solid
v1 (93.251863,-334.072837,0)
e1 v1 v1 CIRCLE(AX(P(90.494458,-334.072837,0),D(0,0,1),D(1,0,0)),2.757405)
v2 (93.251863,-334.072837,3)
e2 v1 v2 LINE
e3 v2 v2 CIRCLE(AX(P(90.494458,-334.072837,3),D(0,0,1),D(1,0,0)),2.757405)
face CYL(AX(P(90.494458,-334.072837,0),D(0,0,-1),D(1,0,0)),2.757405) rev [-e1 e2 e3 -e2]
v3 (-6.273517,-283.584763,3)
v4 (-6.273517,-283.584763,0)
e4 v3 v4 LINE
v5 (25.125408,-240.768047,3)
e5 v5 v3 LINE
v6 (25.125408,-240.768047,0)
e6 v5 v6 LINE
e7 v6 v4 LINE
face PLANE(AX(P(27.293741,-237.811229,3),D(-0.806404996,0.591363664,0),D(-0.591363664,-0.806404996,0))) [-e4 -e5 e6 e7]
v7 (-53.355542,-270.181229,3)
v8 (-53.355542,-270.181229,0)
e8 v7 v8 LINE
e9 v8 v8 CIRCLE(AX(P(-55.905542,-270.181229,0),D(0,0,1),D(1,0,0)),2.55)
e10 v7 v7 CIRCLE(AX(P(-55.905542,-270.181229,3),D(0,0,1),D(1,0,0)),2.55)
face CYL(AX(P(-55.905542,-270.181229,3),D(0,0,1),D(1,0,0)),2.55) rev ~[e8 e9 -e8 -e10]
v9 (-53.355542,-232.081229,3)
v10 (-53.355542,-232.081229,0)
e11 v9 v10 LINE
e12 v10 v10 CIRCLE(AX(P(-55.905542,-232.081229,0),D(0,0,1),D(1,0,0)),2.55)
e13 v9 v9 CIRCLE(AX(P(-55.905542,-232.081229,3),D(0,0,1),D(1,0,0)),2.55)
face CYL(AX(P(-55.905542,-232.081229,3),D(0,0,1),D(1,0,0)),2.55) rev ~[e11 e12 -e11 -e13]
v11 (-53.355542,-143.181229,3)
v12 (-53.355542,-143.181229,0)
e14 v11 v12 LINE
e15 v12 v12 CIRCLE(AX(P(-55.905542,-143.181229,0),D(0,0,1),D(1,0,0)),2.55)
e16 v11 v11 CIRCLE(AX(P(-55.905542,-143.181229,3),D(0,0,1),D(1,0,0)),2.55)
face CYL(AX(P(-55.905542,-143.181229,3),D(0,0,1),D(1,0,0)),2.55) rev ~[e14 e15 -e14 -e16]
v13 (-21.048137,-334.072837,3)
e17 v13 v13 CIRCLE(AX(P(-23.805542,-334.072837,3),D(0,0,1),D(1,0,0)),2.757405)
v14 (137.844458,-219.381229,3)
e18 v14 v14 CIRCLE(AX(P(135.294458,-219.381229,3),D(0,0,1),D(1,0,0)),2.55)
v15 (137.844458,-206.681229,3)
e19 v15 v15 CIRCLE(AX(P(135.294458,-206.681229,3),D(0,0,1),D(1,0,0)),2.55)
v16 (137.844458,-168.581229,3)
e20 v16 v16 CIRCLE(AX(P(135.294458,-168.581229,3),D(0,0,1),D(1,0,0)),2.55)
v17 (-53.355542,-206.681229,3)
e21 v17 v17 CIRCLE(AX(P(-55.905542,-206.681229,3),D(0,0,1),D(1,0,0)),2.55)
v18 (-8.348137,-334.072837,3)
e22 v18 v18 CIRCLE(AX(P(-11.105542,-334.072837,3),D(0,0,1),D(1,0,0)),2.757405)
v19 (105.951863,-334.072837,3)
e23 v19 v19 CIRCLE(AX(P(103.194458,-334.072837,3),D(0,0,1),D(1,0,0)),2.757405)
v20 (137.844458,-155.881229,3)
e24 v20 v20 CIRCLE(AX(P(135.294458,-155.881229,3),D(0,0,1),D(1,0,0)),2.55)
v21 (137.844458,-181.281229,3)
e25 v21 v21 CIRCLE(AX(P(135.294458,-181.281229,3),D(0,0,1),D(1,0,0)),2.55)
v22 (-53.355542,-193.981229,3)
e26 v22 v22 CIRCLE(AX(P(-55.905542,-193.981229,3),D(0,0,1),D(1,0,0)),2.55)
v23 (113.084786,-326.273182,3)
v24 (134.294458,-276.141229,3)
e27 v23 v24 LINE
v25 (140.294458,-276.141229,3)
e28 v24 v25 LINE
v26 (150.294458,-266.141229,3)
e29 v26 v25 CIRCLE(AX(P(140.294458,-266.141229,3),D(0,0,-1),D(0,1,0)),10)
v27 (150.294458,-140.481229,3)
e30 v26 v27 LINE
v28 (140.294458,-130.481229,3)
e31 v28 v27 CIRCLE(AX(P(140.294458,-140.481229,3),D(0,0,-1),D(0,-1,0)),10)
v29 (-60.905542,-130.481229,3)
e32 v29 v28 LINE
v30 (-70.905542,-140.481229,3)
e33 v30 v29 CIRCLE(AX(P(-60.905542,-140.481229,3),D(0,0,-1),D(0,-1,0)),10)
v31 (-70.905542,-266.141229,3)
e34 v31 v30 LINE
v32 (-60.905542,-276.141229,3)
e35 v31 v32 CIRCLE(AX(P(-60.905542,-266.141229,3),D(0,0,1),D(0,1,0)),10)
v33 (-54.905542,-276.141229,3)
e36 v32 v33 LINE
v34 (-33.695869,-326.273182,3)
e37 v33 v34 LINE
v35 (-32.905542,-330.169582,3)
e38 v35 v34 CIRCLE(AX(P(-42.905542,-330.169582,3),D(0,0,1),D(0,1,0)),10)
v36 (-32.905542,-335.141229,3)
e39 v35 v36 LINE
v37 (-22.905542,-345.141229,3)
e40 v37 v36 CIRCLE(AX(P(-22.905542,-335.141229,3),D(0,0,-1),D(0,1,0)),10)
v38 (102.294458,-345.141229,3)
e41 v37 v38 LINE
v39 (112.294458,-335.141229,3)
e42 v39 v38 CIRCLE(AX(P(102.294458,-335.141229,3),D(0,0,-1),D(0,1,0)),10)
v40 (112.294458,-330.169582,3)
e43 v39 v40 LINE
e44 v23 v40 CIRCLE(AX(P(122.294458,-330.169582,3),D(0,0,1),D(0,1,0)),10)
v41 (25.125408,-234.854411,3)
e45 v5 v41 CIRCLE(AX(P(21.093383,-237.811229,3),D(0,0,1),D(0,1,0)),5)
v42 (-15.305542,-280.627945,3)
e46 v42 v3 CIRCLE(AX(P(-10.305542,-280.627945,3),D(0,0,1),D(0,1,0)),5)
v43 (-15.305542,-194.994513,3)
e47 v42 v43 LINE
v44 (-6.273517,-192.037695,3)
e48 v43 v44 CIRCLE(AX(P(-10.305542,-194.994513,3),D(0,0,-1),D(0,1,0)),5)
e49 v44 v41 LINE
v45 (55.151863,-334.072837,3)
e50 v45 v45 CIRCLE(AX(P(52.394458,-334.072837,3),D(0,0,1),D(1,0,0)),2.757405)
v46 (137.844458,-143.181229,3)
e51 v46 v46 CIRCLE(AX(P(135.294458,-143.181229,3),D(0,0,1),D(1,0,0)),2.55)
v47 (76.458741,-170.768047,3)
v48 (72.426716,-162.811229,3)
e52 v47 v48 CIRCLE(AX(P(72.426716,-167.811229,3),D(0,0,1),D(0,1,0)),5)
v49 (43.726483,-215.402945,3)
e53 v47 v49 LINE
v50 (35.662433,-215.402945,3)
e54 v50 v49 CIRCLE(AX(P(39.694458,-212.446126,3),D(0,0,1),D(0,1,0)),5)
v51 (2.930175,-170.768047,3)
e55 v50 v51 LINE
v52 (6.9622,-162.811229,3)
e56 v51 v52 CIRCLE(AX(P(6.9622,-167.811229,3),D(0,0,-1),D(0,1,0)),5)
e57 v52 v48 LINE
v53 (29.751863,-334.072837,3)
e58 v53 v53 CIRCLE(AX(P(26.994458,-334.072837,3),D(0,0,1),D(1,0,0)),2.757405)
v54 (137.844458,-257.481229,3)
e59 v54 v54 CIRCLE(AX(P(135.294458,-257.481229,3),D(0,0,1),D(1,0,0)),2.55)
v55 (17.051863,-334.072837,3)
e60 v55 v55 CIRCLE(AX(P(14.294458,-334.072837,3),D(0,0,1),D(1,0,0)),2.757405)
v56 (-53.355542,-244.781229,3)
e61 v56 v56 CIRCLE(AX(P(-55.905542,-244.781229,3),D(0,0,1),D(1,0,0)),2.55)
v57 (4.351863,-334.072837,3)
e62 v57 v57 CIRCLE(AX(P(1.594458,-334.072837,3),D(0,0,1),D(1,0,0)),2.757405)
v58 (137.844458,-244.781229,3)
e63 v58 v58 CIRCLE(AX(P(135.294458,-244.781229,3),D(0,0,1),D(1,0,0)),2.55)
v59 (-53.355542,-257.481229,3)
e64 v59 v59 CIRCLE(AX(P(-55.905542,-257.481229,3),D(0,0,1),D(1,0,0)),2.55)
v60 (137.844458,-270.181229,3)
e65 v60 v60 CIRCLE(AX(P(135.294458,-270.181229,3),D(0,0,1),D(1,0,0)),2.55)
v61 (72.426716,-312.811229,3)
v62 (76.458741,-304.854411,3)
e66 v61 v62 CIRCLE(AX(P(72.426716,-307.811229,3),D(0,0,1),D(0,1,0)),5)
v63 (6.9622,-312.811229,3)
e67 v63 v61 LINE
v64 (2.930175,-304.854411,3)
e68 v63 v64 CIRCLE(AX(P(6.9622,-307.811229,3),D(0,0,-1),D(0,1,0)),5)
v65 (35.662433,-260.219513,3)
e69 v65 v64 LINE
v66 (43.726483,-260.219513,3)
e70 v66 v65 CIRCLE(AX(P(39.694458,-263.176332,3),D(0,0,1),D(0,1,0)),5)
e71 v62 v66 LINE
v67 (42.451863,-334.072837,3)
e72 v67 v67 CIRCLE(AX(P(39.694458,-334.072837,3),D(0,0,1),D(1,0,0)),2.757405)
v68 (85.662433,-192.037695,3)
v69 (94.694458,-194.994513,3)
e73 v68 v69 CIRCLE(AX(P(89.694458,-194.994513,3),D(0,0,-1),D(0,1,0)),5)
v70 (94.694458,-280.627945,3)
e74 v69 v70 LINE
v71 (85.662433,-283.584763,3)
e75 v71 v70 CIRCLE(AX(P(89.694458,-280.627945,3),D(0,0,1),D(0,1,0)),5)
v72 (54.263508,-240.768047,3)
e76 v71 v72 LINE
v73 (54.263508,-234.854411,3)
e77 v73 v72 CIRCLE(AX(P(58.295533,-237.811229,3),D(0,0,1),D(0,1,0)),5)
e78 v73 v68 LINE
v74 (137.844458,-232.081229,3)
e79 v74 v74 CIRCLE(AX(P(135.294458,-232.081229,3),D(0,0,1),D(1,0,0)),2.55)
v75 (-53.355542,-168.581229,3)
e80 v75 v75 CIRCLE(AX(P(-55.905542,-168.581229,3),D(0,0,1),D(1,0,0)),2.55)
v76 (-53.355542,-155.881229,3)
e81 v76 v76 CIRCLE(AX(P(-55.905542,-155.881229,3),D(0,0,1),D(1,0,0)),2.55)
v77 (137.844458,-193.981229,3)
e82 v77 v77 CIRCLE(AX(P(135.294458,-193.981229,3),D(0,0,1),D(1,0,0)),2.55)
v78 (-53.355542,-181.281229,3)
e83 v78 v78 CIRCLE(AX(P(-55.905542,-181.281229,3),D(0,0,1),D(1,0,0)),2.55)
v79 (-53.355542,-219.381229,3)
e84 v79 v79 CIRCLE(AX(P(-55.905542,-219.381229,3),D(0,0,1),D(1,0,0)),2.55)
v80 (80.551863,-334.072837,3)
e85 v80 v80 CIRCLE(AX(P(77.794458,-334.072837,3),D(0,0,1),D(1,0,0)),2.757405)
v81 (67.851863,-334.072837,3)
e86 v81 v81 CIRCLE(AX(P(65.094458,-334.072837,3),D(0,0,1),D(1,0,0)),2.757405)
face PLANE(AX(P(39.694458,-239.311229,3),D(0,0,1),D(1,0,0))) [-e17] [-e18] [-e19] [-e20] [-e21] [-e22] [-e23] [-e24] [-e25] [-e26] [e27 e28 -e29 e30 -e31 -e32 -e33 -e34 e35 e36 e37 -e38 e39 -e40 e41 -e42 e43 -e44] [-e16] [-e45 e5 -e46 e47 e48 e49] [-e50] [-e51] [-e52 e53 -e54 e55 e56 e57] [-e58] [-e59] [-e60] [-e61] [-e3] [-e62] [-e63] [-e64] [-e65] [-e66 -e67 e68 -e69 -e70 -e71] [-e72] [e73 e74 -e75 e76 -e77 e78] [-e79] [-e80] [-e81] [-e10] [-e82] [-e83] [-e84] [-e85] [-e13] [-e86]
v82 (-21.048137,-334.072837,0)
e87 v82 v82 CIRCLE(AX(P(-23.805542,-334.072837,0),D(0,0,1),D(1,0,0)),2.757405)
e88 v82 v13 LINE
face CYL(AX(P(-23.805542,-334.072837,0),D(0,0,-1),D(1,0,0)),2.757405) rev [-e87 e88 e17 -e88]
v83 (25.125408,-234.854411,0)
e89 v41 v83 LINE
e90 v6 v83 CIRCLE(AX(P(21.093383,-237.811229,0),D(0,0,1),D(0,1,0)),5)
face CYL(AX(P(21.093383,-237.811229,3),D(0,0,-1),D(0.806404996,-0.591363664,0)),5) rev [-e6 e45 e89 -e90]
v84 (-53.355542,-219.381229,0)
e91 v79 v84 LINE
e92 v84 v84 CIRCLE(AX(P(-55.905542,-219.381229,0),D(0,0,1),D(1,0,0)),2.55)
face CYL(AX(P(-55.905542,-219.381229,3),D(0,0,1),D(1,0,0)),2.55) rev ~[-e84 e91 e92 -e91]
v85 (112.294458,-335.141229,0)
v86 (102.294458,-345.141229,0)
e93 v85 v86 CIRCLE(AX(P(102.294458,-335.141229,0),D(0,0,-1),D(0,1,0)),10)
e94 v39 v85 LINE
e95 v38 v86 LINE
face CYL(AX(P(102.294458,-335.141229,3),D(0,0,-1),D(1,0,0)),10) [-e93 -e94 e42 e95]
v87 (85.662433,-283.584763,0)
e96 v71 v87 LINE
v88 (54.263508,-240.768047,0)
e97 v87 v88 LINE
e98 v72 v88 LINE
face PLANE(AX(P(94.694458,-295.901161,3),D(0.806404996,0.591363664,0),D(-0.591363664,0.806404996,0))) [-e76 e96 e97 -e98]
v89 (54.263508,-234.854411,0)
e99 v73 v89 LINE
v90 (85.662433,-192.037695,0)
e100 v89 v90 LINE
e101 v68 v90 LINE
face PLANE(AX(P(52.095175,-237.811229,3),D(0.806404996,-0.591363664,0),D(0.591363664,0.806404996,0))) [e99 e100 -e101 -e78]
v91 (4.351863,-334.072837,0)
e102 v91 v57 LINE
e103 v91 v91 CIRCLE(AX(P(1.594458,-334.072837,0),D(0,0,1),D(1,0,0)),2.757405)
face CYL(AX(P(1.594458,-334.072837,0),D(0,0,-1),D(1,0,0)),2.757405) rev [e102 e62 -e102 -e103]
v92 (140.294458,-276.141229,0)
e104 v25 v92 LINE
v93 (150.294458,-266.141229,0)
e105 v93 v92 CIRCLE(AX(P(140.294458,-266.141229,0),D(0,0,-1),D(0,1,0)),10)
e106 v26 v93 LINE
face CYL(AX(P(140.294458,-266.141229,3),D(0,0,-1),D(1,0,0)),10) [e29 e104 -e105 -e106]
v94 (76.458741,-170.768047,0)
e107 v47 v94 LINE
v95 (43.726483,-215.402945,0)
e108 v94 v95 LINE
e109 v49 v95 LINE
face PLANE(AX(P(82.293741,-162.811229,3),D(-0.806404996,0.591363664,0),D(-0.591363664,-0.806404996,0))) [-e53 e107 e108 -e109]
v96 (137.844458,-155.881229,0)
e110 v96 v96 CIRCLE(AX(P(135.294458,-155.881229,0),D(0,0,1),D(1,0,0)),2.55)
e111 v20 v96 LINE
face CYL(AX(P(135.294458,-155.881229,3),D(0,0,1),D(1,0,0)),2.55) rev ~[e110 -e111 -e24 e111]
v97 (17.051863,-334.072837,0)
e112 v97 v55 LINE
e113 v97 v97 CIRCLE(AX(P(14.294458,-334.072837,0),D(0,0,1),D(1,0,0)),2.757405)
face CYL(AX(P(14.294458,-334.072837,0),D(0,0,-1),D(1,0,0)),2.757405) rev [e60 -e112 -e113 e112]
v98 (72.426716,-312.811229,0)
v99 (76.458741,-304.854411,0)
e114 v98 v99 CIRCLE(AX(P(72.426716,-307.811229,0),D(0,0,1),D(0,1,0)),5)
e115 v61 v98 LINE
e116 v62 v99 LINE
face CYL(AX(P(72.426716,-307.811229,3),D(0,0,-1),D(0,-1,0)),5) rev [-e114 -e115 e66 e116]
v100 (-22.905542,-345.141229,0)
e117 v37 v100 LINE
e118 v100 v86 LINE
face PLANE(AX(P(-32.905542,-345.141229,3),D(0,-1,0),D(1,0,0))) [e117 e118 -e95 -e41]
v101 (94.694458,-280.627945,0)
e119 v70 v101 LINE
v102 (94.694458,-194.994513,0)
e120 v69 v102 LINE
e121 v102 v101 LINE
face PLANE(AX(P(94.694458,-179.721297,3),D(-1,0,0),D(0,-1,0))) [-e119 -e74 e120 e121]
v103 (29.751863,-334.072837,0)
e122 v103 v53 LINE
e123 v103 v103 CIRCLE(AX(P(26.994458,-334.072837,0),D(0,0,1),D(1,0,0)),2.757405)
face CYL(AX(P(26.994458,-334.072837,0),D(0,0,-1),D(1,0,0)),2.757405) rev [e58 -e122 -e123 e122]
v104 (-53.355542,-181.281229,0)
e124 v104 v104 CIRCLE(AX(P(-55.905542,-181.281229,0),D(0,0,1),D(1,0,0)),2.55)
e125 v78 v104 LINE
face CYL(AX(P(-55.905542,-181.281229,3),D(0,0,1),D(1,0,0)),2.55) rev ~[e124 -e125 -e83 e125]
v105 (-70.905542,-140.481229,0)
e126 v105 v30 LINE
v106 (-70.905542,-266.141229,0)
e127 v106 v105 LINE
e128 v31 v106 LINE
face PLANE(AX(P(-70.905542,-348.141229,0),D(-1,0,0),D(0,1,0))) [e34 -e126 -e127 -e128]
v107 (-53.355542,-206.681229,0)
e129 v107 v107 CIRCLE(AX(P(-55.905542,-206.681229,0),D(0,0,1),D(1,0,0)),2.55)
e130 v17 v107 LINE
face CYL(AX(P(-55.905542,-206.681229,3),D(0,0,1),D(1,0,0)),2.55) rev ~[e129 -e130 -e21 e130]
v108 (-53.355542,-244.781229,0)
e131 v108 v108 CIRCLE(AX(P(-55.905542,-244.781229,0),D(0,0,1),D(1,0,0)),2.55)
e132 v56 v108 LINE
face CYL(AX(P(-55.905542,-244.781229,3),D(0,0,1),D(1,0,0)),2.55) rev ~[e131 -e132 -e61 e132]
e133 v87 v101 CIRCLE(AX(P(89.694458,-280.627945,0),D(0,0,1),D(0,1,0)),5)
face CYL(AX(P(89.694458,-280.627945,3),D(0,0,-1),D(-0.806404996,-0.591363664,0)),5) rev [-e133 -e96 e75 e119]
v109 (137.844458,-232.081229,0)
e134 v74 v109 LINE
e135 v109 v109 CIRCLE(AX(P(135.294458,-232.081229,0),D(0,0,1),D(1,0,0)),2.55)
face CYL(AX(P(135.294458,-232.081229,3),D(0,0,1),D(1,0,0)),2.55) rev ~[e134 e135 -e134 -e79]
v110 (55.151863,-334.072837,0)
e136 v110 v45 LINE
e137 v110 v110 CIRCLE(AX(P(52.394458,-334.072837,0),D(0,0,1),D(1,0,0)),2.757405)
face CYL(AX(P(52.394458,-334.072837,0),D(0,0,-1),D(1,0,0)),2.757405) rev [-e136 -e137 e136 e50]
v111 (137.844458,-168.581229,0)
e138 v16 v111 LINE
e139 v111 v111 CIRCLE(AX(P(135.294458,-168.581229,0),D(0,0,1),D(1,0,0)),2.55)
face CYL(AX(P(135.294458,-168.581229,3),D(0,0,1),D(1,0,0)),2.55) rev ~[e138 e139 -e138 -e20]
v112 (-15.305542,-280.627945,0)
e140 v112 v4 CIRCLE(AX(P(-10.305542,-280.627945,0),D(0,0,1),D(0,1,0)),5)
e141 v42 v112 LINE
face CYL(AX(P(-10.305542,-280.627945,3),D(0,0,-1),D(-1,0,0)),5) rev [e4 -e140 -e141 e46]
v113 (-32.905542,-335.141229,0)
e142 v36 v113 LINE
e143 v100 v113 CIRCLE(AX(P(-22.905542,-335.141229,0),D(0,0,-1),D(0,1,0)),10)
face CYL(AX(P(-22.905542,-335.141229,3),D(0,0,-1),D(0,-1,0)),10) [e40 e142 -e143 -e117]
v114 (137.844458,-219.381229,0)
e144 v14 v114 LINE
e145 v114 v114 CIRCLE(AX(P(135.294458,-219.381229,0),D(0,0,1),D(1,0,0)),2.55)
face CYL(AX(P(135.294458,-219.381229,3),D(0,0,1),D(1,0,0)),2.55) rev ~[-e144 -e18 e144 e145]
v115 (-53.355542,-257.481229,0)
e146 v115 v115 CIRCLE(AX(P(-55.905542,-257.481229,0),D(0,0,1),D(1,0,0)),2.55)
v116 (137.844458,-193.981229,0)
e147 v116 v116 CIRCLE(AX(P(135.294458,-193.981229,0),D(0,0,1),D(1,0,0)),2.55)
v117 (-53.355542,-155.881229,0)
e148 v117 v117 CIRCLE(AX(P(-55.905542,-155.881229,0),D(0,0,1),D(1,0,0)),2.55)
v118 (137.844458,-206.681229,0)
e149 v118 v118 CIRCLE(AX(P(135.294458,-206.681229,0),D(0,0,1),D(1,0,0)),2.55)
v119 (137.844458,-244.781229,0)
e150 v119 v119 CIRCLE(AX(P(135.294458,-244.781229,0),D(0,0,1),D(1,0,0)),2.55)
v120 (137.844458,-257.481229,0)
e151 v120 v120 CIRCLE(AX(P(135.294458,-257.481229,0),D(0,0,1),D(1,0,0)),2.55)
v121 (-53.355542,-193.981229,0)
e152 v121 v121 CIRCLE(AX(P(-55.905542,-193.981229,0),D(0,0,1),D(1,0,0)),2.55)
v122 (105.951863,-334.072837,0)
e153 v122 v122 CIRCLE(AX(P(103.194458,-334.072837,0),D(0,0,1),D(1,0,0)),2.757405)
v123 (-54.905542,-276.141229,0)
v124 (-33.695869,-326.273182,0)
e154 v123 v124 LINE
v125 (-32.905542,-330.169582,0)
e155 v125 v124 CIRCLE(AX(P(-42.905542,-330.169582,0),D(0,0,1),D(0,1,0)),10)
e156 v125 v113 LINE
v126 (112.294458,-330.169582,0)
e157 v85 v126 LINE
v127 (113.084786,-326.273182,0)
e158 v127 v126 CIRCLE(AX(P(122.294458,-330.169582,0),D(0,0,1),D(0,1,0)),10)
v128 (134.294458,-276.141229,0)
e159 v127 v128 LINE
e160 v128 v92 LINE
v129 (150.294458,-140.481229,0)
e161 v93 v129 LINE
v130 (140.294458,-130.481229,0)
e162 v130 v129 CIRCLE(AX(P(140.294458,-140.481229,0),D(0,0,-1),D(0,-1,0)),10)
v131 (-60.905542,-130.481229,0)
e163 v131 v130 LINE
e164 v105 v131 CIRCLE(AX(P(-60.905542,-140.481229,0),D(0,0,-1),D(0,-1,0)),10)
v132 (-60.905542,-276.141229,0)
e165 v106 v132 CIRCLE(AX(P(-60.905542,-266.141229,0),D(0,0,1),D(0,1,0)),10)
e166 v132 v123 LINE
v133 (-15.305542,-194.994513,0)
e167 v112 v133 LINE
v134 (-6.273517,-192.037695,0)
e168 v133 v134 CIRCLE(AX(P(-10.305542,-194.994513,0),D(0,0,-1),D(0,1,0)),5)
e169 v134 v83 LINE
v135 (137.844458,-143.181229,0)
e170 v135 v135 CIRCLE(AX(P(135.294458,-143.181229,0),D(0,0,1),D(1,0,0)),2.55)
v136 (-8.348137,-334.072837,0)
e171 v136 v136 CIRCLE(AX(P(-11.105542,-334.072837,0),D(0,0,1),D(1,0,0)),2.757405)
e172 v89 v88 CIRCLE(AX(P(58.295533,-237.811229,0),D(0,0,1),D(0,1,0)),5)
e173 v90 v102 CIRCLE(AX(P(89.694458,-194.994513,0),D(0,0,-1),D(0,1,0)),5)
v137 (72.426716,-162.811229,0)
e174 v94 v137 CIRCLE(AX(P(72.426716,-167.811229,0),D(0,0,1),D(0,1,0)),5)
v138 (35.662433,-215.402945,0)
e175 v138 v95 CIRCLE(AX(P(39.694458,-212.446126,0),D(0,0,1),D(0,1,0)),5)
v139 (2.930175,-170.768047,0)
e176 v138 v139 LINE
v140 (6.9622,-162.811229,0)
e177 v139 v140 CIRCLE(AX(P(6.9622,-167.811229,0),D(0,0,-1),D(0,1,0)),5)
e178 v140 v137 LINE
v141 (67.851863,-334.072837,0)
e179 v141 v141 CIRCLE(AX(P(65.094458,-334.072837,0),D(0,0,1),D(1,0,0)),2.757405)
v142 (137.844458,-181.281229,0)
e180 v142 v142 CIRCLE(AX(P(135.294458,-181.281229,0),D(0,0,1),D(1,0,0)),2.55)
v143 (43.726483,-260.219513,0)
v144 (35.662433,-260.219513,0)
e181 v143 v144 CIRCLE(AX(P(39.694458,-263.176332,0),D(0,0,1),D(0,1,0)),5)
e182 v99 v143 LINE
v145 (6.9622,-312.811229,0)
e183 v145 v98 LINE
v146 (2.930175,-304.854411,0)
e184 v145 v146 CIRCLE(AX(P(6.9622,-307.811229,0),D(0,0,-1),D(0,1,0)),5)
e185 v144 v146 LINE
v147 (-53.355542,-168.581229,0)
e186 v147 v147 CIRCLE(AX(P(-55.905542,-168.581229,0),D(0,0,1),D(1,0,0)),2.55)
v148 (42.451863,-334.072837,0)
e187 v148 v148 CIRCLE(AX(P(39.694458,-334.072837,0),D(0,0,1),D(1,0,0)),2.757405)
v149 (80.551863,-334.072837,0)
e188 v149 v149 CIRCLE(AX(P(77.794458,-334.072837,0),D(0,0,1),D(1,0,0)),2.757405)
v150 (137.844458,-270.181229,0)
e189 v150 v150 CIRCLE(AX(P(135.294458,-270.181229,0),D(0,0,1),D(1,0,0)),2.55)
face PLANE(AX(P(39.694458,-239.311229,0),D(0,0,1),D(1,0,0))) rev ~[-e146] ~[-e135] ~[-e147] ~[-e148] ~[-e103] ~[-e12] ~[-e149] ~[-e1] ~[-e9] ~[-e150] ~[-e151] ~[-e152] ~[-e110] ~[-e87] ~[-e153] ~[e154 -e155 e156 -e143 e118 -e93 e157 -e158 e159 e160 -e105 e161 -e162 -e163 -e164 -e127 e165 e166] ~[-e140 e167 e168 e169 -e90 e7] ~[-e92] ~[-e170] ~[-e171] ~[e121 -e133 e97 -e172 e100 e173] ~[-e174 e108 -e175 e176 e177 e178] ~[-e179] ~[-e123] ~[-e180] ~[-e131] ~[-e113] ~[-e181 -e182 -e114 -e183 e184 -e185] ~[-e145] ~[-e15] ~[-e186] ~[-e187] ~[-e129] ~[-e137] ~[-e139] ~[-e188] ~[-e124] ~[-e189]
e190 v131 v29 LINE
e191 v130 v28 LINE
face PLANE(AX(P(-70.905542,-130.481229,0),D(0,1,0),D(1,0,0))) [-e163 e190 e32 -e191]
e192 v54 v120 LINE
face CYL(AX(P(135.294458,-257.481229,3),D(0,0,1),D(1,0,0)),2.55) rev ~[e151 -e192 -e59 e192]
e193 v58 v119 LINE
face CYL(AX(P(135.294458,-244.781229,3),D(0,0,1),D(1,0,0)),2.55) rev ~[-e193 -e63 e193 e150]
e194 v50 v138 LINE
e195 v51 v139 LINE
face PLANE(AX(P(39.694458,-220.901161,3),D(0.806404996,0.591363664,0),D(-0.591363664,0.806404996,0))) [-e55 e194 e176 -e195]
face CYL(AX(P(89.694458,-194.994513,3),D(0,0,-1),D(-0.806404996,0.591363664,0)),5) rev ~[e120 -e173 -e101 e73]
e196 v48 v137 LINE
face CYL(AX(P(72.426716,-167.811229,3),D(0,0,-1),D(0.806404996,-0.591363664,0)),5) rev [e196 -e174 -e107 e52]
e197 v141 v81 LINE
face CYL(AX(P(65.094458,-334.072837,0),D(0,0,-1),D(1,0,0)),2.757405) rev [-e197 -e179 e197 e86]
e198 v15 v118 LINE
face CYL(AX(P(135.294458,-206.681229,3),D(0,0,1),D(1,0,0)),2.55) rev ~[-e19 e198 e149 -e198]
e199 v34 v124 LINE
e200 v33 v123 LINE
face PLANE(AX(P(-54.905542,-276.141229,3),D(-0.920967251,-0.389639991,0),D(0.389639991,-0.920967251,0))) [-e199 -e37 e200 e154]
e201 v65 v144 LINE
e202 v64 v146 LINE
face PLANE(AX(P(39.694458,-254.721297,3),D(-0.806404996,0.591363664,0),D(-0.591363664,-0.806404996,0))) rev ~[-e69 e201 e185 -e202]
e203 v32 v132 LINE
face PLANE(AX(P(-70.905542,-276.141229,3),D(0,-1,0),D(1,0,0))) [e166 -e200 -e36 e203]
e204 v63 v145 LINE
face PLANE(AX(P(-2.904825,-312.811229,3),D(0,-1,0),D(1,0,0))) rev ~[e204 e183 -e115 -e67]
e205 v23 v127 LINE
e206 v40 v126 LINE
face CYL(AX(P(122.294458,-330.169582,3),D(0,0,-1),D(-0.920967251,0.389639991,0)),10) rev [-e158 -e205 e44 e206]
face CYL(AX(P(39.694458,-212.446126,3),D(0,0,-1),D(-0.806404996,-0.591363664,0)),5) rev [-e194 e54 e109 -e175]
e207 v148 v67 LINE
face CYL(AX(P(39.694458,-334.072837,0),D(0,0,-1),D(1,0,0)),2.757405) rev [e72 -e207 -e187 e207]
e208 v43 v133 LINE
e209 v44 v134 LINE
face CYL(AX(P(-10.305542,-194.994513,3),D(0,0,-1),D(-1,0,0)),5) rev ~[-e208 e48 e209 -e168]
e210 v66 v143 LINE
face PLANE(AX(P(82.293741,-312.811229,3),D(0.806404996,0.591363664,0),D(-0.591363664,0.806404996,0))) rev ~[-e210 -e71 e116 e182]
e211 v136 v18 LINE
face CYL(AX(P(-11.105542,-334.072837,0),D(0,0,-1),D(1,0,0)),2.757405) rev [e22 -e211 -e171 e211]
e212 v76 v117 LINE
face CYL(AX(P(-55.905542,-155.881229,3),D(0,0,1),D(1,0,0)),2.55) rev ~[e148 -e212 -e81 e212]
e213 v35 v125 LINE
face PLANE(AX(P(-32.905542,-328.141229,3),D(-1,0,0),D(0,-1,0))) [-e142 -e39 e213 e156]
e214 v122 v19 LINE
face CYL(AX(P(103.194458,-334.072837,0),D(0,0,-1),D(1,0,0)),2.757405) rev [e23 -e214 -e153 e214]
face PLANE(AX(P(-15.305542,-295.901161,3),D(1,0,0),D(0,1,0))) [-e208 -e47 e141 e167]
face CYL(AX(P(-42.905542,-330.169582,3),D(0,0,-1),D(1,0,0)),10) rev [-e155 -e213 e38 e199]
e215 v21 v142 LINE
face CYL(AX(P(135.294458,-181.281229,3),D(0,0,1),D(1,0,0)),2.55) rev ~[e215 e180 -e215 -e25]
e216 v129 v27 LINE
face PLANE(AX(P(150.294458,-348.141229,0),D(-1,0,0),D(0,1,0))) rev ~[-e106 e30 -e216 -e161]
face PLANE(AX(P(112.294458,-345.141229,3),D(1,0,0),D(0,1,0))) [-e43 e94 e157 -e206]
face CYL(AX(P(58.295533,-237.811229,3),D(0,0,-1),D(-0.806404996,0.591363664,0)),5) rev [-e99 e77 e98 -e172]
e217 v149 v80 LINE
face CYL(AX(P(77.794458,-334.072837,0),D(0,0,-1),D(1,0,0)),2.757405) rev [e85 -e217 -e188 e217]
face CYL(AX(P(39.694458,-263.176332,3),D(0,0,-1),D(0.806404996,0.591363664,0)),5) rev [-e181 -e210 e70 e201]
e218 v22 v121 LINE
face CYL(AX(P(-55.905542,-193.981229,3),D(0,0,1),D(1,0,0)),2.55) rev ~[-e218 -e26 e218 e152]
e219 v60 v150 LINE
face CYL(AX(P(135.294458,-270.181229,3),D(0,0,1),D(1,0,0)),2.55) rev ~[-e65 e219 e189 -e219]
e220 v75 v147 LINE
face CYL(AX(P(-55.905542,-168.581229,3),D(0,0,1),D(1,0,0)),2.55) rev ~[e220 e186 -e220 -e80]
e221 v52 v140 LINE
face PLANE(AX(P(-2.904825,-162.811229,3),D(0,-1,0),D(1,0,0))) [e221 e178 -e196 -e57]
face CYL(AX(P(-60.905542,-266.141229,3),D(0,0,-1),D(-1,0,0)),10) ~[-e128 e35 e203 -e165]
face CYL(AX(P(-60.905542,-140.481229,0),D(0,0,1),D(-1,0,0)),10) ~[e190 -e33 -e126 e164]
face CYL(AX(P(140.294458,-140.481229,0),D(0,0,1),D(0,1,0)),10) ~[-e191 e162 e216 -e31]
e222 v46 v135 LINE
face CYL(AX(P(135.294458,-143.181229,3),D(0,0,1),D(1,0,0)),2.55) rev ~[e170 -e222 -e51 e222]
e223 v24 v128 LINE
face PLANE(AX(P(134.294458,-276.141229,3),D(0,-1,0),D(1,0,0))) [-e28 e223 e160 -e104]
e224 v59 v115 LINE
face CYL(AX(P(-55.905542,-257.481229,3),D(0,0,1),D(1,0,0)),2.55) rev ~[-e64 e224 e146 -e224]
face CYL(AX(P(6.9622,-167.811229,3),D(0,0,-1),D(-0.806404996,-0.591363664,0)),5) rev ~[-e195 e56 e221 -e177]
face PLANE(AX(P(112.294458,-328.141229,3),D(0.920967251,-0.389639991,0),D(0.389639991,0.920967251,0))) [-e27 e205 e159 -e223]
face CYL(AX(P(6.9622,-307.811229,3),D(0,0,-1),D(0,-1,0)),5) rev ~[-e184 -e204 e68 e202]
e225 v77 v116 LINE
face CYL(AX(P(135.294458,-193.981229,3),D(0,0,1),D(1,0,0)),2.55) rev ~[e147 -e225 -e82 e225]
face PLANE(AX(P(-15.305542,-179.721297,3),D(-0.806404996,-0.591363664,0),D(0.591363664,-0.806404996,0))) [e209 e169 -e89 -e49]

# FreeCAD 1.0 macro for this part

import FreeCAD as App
import Part
import Sketcher
from FreeCAD import Vector
Q = App.Units.Quantity


def edges_at(feature, points):
    """Names of the edges that pass closest to the given points."""
    edges = feature.Shape.Edges
    near = lambda p: min(range(len(edges)), key=lambda i: edges[i].distToShape(Part.Vertex(*p))[0])
    return sorted({f"Edge{near(p) + 1}" for p in points})

doc = App.newDocument("Part")
body = doc.addObject("PartDesign::Body", "Body")

# Sketch on XY plane
sketch1 = body.newObject("Sketcher::SketchObject", "Sketch")
sketch1.AttachmentSupport = (doc.getObject("XY_Plane"), [""])
sketch1.MapMode = "FlatFace"
sketch1.addGeometry([
    Part.LineSegment(Vector(-70.905542, -130.481229, 0), Vector(-70.905542, -348.141229, 0)),  # 0
    Part.LineSegment(Vector(-70.905542, -348.141229, 0), Vector(150.294458, -348.141229, 0)),  # 1
    Part.LineSegment(Vector(150.294458, -348.141229, 0), Vector(150.294458, -130.481229, 0)),  # 2
    Part.LineSegment(Vector(150.294458, -130.481229, 0), Vector(-70.905542, -130.481229, 0)),  # 3
    Part.Circle(Vector(-61.905542, -334.072837, 0), Vector(0, 0, 1), 2.757405),  # 4
    Part.Circle(Vector(-49.205542, -334.072837, 0), Vector(0, 0, 1), 2.757405),  # 5
    Part.Circle(Vector(-36.505542, -334.072837, 0), Vector(0, 0, 1), 2.757405),  # 6
    Part.Circle(Vector(-23.805542, -334.072837, 0), Vector(0, 0, 1), 2.757405),  # 7
    Part.Circle(Vector(-11.105542, -334.072837, 0), Vector(0, 0, 1), 2.757405),  # 8
    Part.Circle(Vector(1.594458, -334.072837, 0), Vector(0, 0, 1), 2.757405),  # 9
    Part.Circle(Vector(14.294458, -334.072837, 0), Vector(0, 0, 1), 2.757405),  # 10
    Part.Circle(Vector(26.994458, -334.072837, 0), Vector(0, 0, 1), 2.757405),  # 11
    Part.Circle(Vector(39.694458, -334.072837, 0), Vector(0, 0, 1), 2.757405),  # 12
    Part.Circle(Vector(52.394458, -334.072837, 0), Vector(0, 0, 1), 2.757405),  # 13
    Part.Circle(Vector(65.094458, -334.072837, 0), Vector(0, 0, 1), 2.757405),  # 14
    Part.Circle(Vector(77.794458, -334.072837, 0), Vector(0, 0, 1), 2.757405),  # 15
    Part.Circle(Vector(90.494458, -334.072837, 0), Vector(0, 0, 1), 2.757405),  # 16
    Part.Circle(Vector(103.194458, -334.072837, 0), Vector(0, 0, 1), 2.757405),  # 17
    Part.Circle(Vector(115.894458, -334.072837, 0), Vector(0, 0, 1), 2.757405),  # 18
    Part.Circle(Vector(128.594458, -334.072837, 0), Vector(0, 0, 1), 2.757405),  # 19
    Part.Circle(Vector(141.294458, -334.072837, 0), Vector(0, 0, 1), 2.757405),  # 20
], False)
sketch1.addConstraint([
    Sketcher.Constraint("Coincident", 0, 2, 1, 1),
    Sketcher.Constraint("Coincident", 1, 2, 2, 1),
    Sketcher.Constraint("Coincident", 2, 2, 3, 1),
    Sketcher.Constraint("Coincident", 3, 2, 0, 1),
    Sketcher.Constraint("Vertical", 0),
    Sketcher.Constraint("Horizontal", 1),
    Sketcher.Constraint("Vertical", 2),
    Sketcher.Constraint("Horizontal", 3),
    Sketcher.Constraint("Equal", 4, 5),
    Sketcher.Constraint("Equal", 5, 6),
    Sketcher.Constraint("Equal", 6, 7),
    Sketcher.Constraint("Equal", 7, 8),
    Sketcher.Constraint("Equal", 8, 9),
    Sketcher.Constraint("Equal", 9, 10),
    Sketcher.Constraint("Equal", 10, 11),
    Sketcher.Constraint("Equal", 11, 12),
    Sketcher.Constraint("Equal", 12, 13),
    Sketcher.Constraint("Equal", 13, 14),
    Sketcher.Constraint("Equal", 14, 15),
    Sketcher.Constraint("Equal", 15, 16),
    Sketcher.Constraint("Equal", 16, 17),
    Sketcher.Constraint("Equal", 17, 18),
    Sketcher.Constraint("Equal", 18, 19),
    Sketcher.Constraint("Equal", 19, 20),
    Sketcher.Constraint("Horizontal", 4, 3, 5, 3),
    Sketcher.Constraint("Horizontal", 5, 3, 6, 3),
    Sketcher.Constraint("Horizontal", 6, 3, 7, 3),
    Sketcher.Constraint("Horizontal", 7, 3, 8, 3),
    Sketcher.Constraint("Horizontal", 8, 3, 9, 3),
    Sketcher.Constraint("Horizontal", 9, 3, 10, 3),
    Sketcher.Constraint("Horizontal", 10, 3, 11, 3),
    Sketcher.Constraint("Horizontal", 11, 3, 12, 3),
    Sketcher.Constraint("Horizontal", 12, 3, 13, 3),
    Sketcher.Constraint("Horizontal", 13, 3, 14, 3),
    Sketcher.Constraint("Horizontal", 14, 3, 15, 3),
    Sketcher.Constraint("Horizontal", 15, 3, 16, 3),
    Sketcher.Constraint("Horizontal", 16, 3, 17, 3),
    Sketcher.Constraint("Horizontal", 17, 3, 18, 3),
    Sketcher.Constraint("Horizontal", 18, 3, 19, 3),
    Sketcher.Constraint("Horizontal", 19, 3, 20, 3),
    Sketcher.Constraint("DistanceX", 1, 1, 1, 2, Q("221.2 mm")),
    Sketcher.Constraint("DistanceX", 0, 2, 4, 3, Q("9 mm")),
    Sketcher.Constraint("DistanceX", 20, 3, 1, 2, Q("9 mm")),
    Sketcher.Constraint("DistanceY", 0, 2, 0, 1, Q("217.66 mm")),
    Sketcher.Constraint("DistanceX", 4, 3, 5, 3, Q("12.7 mm")),
    Sketcher.Constraint("DistanceX", 5, 3, 6, 3, Q("12.7 mm")),
    Sketcher.Constraint("DistanceX", 6, 3, 7, 3, Q("12.7 mm")),
    Sketcher.Constraint("DistanceX", 7, 3, 8, 3, Q("12.7 mm")),
    Sketcher.Constraint("DistanceX", 8, 3, 9, 3, Q("12.7 mm")),
    Sketcher.Constraint("DistanceX", 9, 3, 10, 3, Q("12.7 mm")),
    Sketcher.Constraint("DistanceX", 10, 3, 11, 3, Q("12.7 mm")),
    Sketcher.Constraint("DistanceX", 11, 3, 12, 3, Q("12.7 mm")),
    Sketcher.Constraint("DistanceX", 12, 3, 13, 3, Q("12.7 mm")),
    Sketcher.Constraint("DistanceX", 13, 3, 14, 3, Q("12.7 mm")),
    Sketcher.Constraint("DistanceX", 14, 3, 15, 3, Q("12.7 mm")),
    Sketcher.Constraint("DistanceX", 15, 3, 16, 3, Q("12.7 mm")),
    Sketcher.Constraint("DistanceX", 16, 3, 17, 3, Q("12.7 mm")),
    Sketcher.Constraint("DistanceX", 17, 3, 18, 3, Q("12.7 mm")),
    Sketcher.Constraint("DistanceX", 18, 3, 19, 3, Q("12.7 mm")),
    Sketcher.Constraint("Diameter", 4, Q("5.51481 mm")),
    Sketcher.Constraint("DistanceX", 4, 3, -1, 1, Q("61.905542 mm")),
    Sketcher.Constraint("DistanceY", 0, 2, -1, 1, Q("348.141229 mm")),
    Sketcher.Constraint("DistanceY", 0, 2, 4, 3, Q("14.068392 mm")),
])
pad1 = body.newObject("PartDesign::Pad", "Pad")
pad1.Profile = sketch1
pad1.Length = 3

# Sketch on XY plane
sketch2 = body.newObject("Sketcher::SketchObject", "Sketch001")
sketch2.AttachmentSupport = (doc.getObject("XY_Plane"), [""])
sketch2.MapMode = "FlatFace"
sketch2.AttachmentOffset = App.Placement(Vector(0, 0, 3), App.Rotation())
sketch2.addGeometry([
    Part.Circle(Vector(-55.905542, -143.181229, 0), Vector(0, 0, 1), 2.55),  # 0
    Part.Circle(Vector(-55.905542, -155.881229, 0), Vector(0, 0, 1), 2.55),  # 1
    Part.Circle(Vector(-55.905542, -168.581229, 0), Vector(0, 0, 1), 2.55),  # 2
    Part.Circle(Vector(-55.905542, -181.281229, 0), Vector(0, 0, 1), 2.55),  # 3
    Part.Circle(Vector(-55.905542, -193.981229, 0), Vector(0, 0, 1), 2.55),  # 4
    Part.Circle(Vector(-55.905542, -206.681229, 0), Vector(0, 0, 1), 2.55),  # 5
    Part.Circle(Vector(-55.905542, -219.381229, 0), Vector(0, 0, 1), 2.55),  # 6
    Part.Circle(Vector(-55.905542, -232.081229, 0), Vector(0, 0, 1), 2.55),  # 7
    Part.Circle(Vector(-55.905542, -244.781229, 0), Vector(0, 0, 1), 2.55),  # 8
    Part.Circle(Vector(-55.905542, -257.481229, 0), Vector(0, 0, 1), 2.55),  # 9
    Part.Circle(Vector(-55.905542, -270.181229, 0), Vector(0, 0, 1), 2.55),  # 10
    Part.Circle(Vector(-55.905542, -282.881229, 0), Vector(0, 0, 1), 2.55),  # 11
    Part.Circle(Vector(-55.905542, -295.581229, 0), Vector(0, 0, 1), 2.55),  # 12
    Part.Circle(Vector(-55.905542, -308.281229, 0), Vector(0, 0, 1), 2.55),  # 13
    Part.Circle(Vector(-55.905542, -320.981229, 0), Vector(0, 0, 1), 2.55),  # 14
    Part.Circle(Vector(135.294458, -320.981229, 0), Vector(0, 0, 1), 2.55),  # 15
    Part.Circle(Vector(135.294458, -308.281229, 0), Vector(0, 0, 1), 2.55),  # 16
    Part.Circle(Vector(135.294458, -295.581229, 0), Vector(0, 0, 1), 2.55),  # 17
    Part.Circle(Vector(135.294458, -282.881229, 0), Vector(0, 0, 1), 2.55),  # 18
    Part.Circle(Vector(135.294458, -270.181229, 0), Vector(0, 0, 1), 2.55),  # 19
    Part.Circle(Vector(135.294458, -257.481229, 0), Vector(0, 0, 1), 2.55),  # 20
    Part.Circle(Vector(135.294458, -244.781229, 0), Vector(0, 0, 1), 2.55),  # 21
    Part.Circle(Vector(135.294458, -232.081229, 0), Vector(0, 0, 1), 2.55),  # 22
    Part.Circle(Vector(135.294458, -219.381229, 0), Vector(0, 0, 1), 2.55),  # 23
    Part.Circle(Vector(135.294458, -206.681229, 0), Vector(0, 0, 1), 2.55),  # 24
    Part.Circle(Vector(135.294458, -193.981229, 0), Vector(0, 0, 1), 2.55),  # 25
    Part.Circle(Vector(135.294458, -181.281229, 0), Vector(0, 0, 1), 2.55),  # 26
    Part.Circle(Vector(135.294458, -168.581229, 0), Vector(0, 0, 1), 2.55),  # 27
    Part.Circle(Vector(135.294458, -155.881229, 0), Vector(0, 0, 1), 2.55),  # 28
    Part.Circle(Vector(135.294458, -143.181229, 0), Vector(0, 0, 1), 2.55),  # 29
], False)
sketch2.addConstraint([
    Sketcher.Constraint("Equal", 0, 1),
    Sketcher.Constraint("Equal", 1, 2),
    Sketcher.Constraint("Equal", 2, 3),
    Sketcher.Constraint("Equal", 3, 4),
    Sketcher.Constraint("Equal", 4, 5),
    Sketcher.Constraint("Equal", 5, 6),
    Sketcher.Constraint("Equal", 6, 7),
    Sketcher.Constraint("Equal", 7, 8),
    Sketcher.Constraint("Equal", 8, 9),
    Sketcher.Constraint("Equal", 9, 10),
    Sketcher.Constraint("Equal", 10, 11),
    Sketcher.Constraint("Equal", 11, 12),
    Sketcher.Constraint("Equal", 12, 13),
    Sketcher.Constraint("Equal", 13, 14),
    Sketcher.Constraint("Equal", 14, 15),
    Sketcher.Constraint("Equal", 15, 16),
    Sketcher.Constraint("Equal", 16, 17),
    Sketcher.Constraint("Equal", 17, 18),
    Sketcher.Constraint("Equal", 18, 19),
    Sketcher.Constraint("Equal", 19, 20),
    Sketcher.Constraint("Equal", 20, 21),
    Sketcher.Constraint("Equal", 21, 22),
    Sketcher.Constraint("Equal", 22, 23),
    Sketcher.Constraint("Equal", 23, 24),
    Sketcher.Constraint("Equal", 24, 25),
    Sketcher.Constraint("Equal", 25, 26),
    Sketcher.Constraint("Equal", 26, 27),
    Sketcher.Constraint("Equal", 27, 28),
    Sketcher.Constraint("Equal", 28, 29),
    Sketcher.Constraint("Horizontal", 14, 3, 15, 3),
    Sketcher.Constraint("Horizontal", 13, 3, 16, 3),
    Sketcher.Constraint("Horizontal", 12, 3, 17, 3),
    Sketcher.Constraint("Horizontal", 11, 3, 18, 3),
    Sketcher.Constraint("Horizontal", 10, 3, 19, 3),
    Sketcher.Constraint("Horizontal", 9, 3, 20, 3),
    Sketcher.Constraint("Horizontal", 8, 3, 21, 3),
    Sketcher.Constraint("Horizontal", 7, 3, 22, 3),
    Sketcher.Constraint("Horizontal", 6, 3, 23, 3),
    Sketcher.Constraint("Horizontal", 5, 3, 24, 3),
    Sketcher.Constraint("Horizontal", 4, 3, 25, 3),
    Sketcher.Constraint("Horizontal", 3, 3, 26, 3),
    Sketcher.Constraint("Horizontal", 2, 3, 27, 3),
    Sketcher.Constraint("Horizontal", 1, 3, 28, 3),
    Sketcher.Constraint("Horizontal", 0, 3, 29, 3),
    Sketcher.Constraint("Vertical", 0, 3, 1, 3),
    Sketcher.Constraint("Vertical", 1, 3, 2, 3),
    Sketcher.Constraint("Vertical", 2, 3, 3, 3),
    Sketcher.Constraint("Vertical", 3, 3, 4, 3),
    Sketcher.Constraint("Vertical", 4, 3, 5, 3),
    Sketcher.Constraint("Vertical", 5, 3, 6, 3),
    Sketcher.Constraint("Vertical", 6, 3, 7, 3),
    Sketcher.Constraint("Vertical", 7, 3, 8, 3),
    Sketcher.Constraint("Vertical", 8, 3, 9, 3),
    Sketcher.Constraint("Vertical", 9, 3, 10, 3),
    Sketcher.Constraint("Vertical", 10, 3, 11, 3),
    Sketcher.Constraint("Vertical", 11, 3, 12, 3),
    Sketcher.Constraint("Vertical", 12, 3, 13, 3),
    Sketcher.Constraint("Vertical", 13, 3, 14, 3),
    Sketcher.Constraint("Vertical", 15, 3, 16, 3),
    Sketcher.Constraint("Vertical", 16, 3, 17, 3),
    Sketcher.Constraint("Vertical", 17, 3, 18, 3),
    Sketcher.Constraint("Vertical", 18, 3, 19, 3),
    Sketcher.Constraint("Vertical", 19, 3, 20, 3),
    Sketcher.Constraint("Vertical", 20, 3, 21, 3),
    Sketcher.Constraint("Vertical", 21, 3, 22, 3),
    Sketcher.Constraint("Vertical", 22, 3, 23, 3),
    Sketcher.Constraint("Vertical", 23, 3, 24, 3),
    Sketcher.Constraint("Vertical", 24, 3, 25, 3),
    Sketcher.Constraint("Vertical", 25, 3, 26, 3),
    Sketcher.Constraint("Vertical", 26, 3, 27, 3),
    Sketcher.Constraint("Vertical", 27, 3, 28, 3),
    Sketcher.Constraint("Vertical", 28, 3, 29, 3),
    Sketcher.Constraint("Diameter", 0, Q("5.1 mm")),
    Sketcher.Constraint("DistanceY", 1, 3, 0, 3, Q("12.7 mm")),
    Sketcher.Constraint("DistanceY", 2, 3, 1, 3, Q("12.7 mm")),
    Sketcher.Constraint("DistanceY", 3, 3, 2, 3, Q("12.7 mm")),
    Sketcher.Constraint("DistanceY", 4, 3, 3, 3, Q("12.7 mm")),
    Sketcher.Constraint("DistanceY", 5, 3, 4, 3, Q("12.7 mm")),
    Sketcher.Constraint("DistanceY", 6, 3, 5, 3, Q("12.7 mm")),
    Sketcher.Constraint("DistanceY", 7, 3, 6, 3, Q("12.7 mm")),
    Sketcher.Constraint("DistanceY", 8, 3, 7, 3, Q("12.7 mm")),
    Sketcher.Constraint("DistanceY", 9, 3, 8, 3, Q("12.7 mm")),
    Sketcher.Constraint("DistanceY", 10, 3, 9, 3, Q("12.7 mm")),
    Sketcher.Constraint("DistanceY", 11, 3, 10, 3, Q("12.7 mm")),
    Sketcher.Constraint("DistanceY", 12, 3, 11, 3, Q("12.7 mm")),
    Sketcher.Constraint("DistanceY", 13, 3, 12, 3, Q("12.7 mm")),
    Sketcher.Constraint("DistanceY", 14, 3, 13, 3, Q("12.7 mm")),
    Sketcher.Constraint("DistanceX", 14, 3, 15, 3, Q("191.2 mm")),
    Sketcher.Constraint("DistanceX", 0, 3, -1, 1, Q("55.905542 mm")),
    Sketcher.Constraint("DistanceY", 0, 3, -1, 1, Q("143.181229 mm")),
])
pocket1 = body.newObject("PartDesign::Pocket", "Pocket")
pocket1.Profile = sketch2
pocket1.Length = 10

# Sketch on XY plane
sketch3 = body.newObject("Sketcher::SketchObject", "Sketch002")
sketch3.AttachmentSupport = (doc.getObject("XY_Plane"), [""])
sketch3.MapMode = "FlatFace"
sketch3.AttachmentOffset = App.Placement(Vector(0, 0, 3), App.Rotation())
sketch3.addGeometry([
    Part.LineSegment(Vector(112.294458, -328.141229, 0), Vector(112.294458, -345.141229, 0)),  # 0
    Part.LineSegment(Vector(112.294458, -345.141229, 0), Vector(-32.905542, -345.141229, 0)),  # 1
    Part.LineSegment(Vector(-32.905542, -345.141229, 0), Vector(-32.905542, -328.141229, 0)),  # 2
    Part.LineSegment(Vector(-32.905542, -328.141229, 0), Vector(-54.905542, -276.141229, 0)),  # 3
    Part.LineSegment(Vector(-54.905542, -276.141229, 0), Vector(-70.905542, -276.141229, 0)),  # 4
    Part.LineSegment(Vector(-70.905542, -276.141229, 0), Vector(-70.905542, -348.141229, 0)),  # 5
    Part.LineSegment(Vector(-70.905542, -348.141229, 0), Vector(150.294458, -348.141229, 0)),  # 6
    Part.LineSegment(Vector(150.294458, -348.141229, 0), Vector(150.294458, -276.141229, 0)),  # 7
    Part.LineSegment(Vector(150.294458, -276.141229, 0), Vector(134.294458, -276.141229, 0)),  # 8
    Part.LineSegment(Vector(134.294458, -276.141229, 0), Vector(112.294458, -328.141229, 0)),  # 9
], False)
sketch3.addConstraint([
    Sketcher.Constraint("Coincident", 0, 2, 1, 1),
    Sketcher.Constraint("Coincident", 1, 2, 2, 1),
    Sketcher.Constraint("Coincident", 2, 2, 3, 1),
    Sketcher.Constraint("Coincident", 3, 2, 4, 1),
    Sketcher.Constraint("Coincident", 4, 2, 5, 1),
    Sketcher.Constraint("Coincident", 5, 2, 6, 1),
    Sketcher.Constraint("Coincident", 6, 2, 7, 1),
    Sketcher.Constraint("Coincident", 7, 2, 8, 1),
    Sketcher.Constraint("Coincident", 8, 2, 9, 1),
    Sketcher.Constraint("Coincident", 9, 2, 0, 1),
    Sketcher.Constraint("Vertical", 0),
    Sketcher.Constraint("Horizontal", 1),
    Sketcher.Constraint("Vertical", 2),
    Sketcher.Constraint("Horizontal", 4),
    Sketcher.Constraint("Vertical", 5),
    Sketcher.Constraint("Horizontal", 6),
    Sketcher.Constraint("Vertical", 7),
    Sketcher.Constraint("Horizontal", 8),
    Sketcher.Constraint("Horizontal", 4, 2, 7, 2),
    Sketcher.Constraint("Horizontal", 2, 2, 9, 2),
    Sketcher.Constraint("Equal", 4, 8),
    Sketcher.Constraint("Equal", 3, 9),
    Sketcher.Constraint("DistanceX", 4, 2, 4, 1, Q("16 mm")),
    Sketcher.Constraint("DistanceY", 0, 2, 0, 1, Q("17 mm")),
    Sketcher.Constraint("DistanceY", 5, 2, 5, 1, Q("72 mm")),
    Sketcher.Constraint("DistanceX", 1, 2, 1, 1, Q("145.2 mm")),
    Sketcher.Constraint("DistanceX", 6, 1, 6, 2, Q("221.2 mm")),
    Sketcher.Constraint("DistanceY", 2, 2, 3, 2, Q("52 mm")),
    Sketcher.Constraint("DistanceX", -1, 1, 0, 2, Q("112.294458 mm")),
    Sketcher.Constraint("DistanceY", 0, 2, -1, 1, Q("345.141229 mm")),
])
pocket2 = body.newObject("PartDesign::Pocket", "Pocket001")
pocket2.Profile = sketch3
pocket2.Length = 10
doc.recompute()

fillet = body.newObject("PartDesign::Fillet", "Fillet")
fillet.Base = (pocket2, edges_at(pocket2, [
    (150.294, -276.141, 1.5),
    (112.294, -328.141, 1.5),
    (-32.906, -328.141, 1.5),
    (-32.906, -345.141, 1.5),
    (112.294, -345.141, 1.5),
    (-70.906, -276.141, 1.5),
    (-70.906, -130.481, 1.5),
    (150.294, -130.481, 1.5),
]))
fillet.Radius = 10

# Sketch on XY plane
sketch4 = body.newObject("Sketcher::SketchObject", "Sketch003")
sketch4.AttachmentSupport = (doc.getObject("XY_Plane"), [""])
sketch4.MapMode = "FlatFace"
sketch4.AttachmentOffset = App.Placement(Vector(0, 0, 3), App.Rotation())
sketch4.addGeometry([
    Part.LineSegment(Vector(27.293741, -237.811229, 0), Vector(-15.305542, -179.721297, 0)),  # 0
    Part.LineSegment(Vector(-15.305542, -179.721297, 0), Vector(-15.305542, -295.901161, 0)),  # 1
    Part.LineSegment(Vector(-15.305542, -295.901161, 0), Vector(27.293741, -237.811229, 0)),  # 2
    Part.LineSegment(Vector(82.293741, -162.811229, 0), Vector(-2.904825, -162.811229, 0)),  # 3
    Part.LineSegment(Vector(-2.904825, -162.811229, 0), Vector(39.694458, -220.901161, 0)),  # 4
    Part.LineSegment(Vector(39.694458, -220.901161, 0), Vector(82.293741, -162.811229, 0)),  # 5
    Part.LineSegment(Vector(-2.904825, -312.811229, 0), Vector(82.293741, -312.811229, 0)),  # 6
    Part.LineSegment(Vector(82.293741, -312.811229, 0), Vector(39.694458, -254.721297, 0)),  # 7
    Part.LineSegment(Vector(39.694458, -254.721297, 0), Vector(-2.904825, -312.811229, 0)),  # 8
    Part.LineSegment(Vector(94.694458, -295.901161, 0), Vector(94.694458, -179.721297, 0)),  # 9
    Part.LineSegment(Vector(94.694458, -179.721297, 0), Vector(52.095175, -237.811229, 0)),  # 10
    Part.LineSegment(Vector(52.095175, -237.811229, 0), Vector(94.694458, -295.901161, 0)),  # 11
], False)
sketch4.addConstraint([
    Sketcher.Constraint("Coincident", 0, 2, 1, 1),
    Sketcher.Constraint("Coincident", 1, 2, 2, 1),
    Sketcher.Constraint("Coincident", 2, 2, 0, 1),
    Sketcher.Constraint("Coincident", 3, 2, 4, 1),
    Sketcher.Constraint("Coincident", 4, 2, 5, 1),
    Sketcher.Constraint("Coincident", 5, 2, 3, 1),
    Sketcher.Constraint("Coincident", 6, 2, 7, 1),
    Sketcher.Constraint("Coincident", 7, 2, 8, 1),
    Sketcher.Constraint("Coincident", 8, 2, 6, 1),
    Sketcher.Constraint("Coincident", 9, 2, 10, 1),
    Sketcher.Constraint("Coincident", 10, 2, 11, 1),
    Sketcher.Constraint("Coincident", 11, 2, 9, 1),
    Sketcher.Constraint("Vertical", 1),
    Sketcher.Constraint("Horizontal", 3),
    Sketcher.Constraint("Horizontal", 6),
    Sketcher.Constraint("Vertical", 9),
    Sketcher.Constraint("Parallel", 0, 4),
    Sketcher.Constraint("Parallel", 2, 5),
    Sketcher.Constraint("Parallel", 4, 7),
    Sketcher.Constraint("Parallel", 5, 8),
    Sketcher.Constraint("Parallel", 8, 10),
    Sketcher.Constraint("Parallel", 7, 11),
    Sketcher.Constraint("Horizontal", 0, 2, 9, 2),
    Sketcher.Constraint("Horizontal", 2, 2, 10, 2),
    Sketcher.Constraint("Horizontal", 1, 2, 11, 2),
    Sketcher.Constraint("Vertical", 5, 2, 6, 2),
    Sketcher.Constraint("Vertical", 4, 2, 7, 2),
    Sketcher.Constraint("Equal", 2, 4),
    Sketcher.Constraint("DistanceY", 2, 2, 3, 2, Q("75 mm")),
    Sketcher.Constraint("DistanceX", 0, 2, 4, 2, Q("55 mm")),
    Sketcher.Constraint("DistanceY", 6, 2, 2, 2, Q("75 mm")),
    Sketcher.Constraint("DistanceX", 4, 2, 9, 2, Q("55 mm")),
    Sketcher.Constraint("Distance", 0, Q("72.035679 mm")),
    Sketcher.Constraint("DistanceX", 3, 2, 3, 1, Q("85.198566 mm")),
    Sketcher.Constraint("DistanceX", 0, 2, -1, 1, Q("15.305542 mm")),
    Sketcher.Constraint("DistanceY", 1, 2, -1, 1, Q("295.901161 mm")),
])
pocket3 = body.newObject("PartDesign::Pocket", "Pocket002")
pocket3.Profile = sketch4
pocket3.Length = 10
doc.recompute()

fillet2 = body.newObject("PartDesign::Fillet", "Fillet001")
fillet2.Base = (pocket3, edges_at(pocket3, [
    (-2.905, -312.811, 1.5),
    (39.694, -254.721, 1.5),
    (82.294, -312.811, 1.5),
    (-15.306, -295.901, 1.5),
    (-15.306, -179.721, 1.5),
    (27.294, -237.811, 1.5),
    (94.694, -295.901, 1.5),
    (52.095, -237.811, 1.5),
    (94.694, -179.721, 1.5),
    (39.694, -220.901, 1.5),
    (-2.905, -162.811, 1.5),
    (82.294, -162.811, 1.5),
]))
fillet2.Radius = 5

doc.recompute()
